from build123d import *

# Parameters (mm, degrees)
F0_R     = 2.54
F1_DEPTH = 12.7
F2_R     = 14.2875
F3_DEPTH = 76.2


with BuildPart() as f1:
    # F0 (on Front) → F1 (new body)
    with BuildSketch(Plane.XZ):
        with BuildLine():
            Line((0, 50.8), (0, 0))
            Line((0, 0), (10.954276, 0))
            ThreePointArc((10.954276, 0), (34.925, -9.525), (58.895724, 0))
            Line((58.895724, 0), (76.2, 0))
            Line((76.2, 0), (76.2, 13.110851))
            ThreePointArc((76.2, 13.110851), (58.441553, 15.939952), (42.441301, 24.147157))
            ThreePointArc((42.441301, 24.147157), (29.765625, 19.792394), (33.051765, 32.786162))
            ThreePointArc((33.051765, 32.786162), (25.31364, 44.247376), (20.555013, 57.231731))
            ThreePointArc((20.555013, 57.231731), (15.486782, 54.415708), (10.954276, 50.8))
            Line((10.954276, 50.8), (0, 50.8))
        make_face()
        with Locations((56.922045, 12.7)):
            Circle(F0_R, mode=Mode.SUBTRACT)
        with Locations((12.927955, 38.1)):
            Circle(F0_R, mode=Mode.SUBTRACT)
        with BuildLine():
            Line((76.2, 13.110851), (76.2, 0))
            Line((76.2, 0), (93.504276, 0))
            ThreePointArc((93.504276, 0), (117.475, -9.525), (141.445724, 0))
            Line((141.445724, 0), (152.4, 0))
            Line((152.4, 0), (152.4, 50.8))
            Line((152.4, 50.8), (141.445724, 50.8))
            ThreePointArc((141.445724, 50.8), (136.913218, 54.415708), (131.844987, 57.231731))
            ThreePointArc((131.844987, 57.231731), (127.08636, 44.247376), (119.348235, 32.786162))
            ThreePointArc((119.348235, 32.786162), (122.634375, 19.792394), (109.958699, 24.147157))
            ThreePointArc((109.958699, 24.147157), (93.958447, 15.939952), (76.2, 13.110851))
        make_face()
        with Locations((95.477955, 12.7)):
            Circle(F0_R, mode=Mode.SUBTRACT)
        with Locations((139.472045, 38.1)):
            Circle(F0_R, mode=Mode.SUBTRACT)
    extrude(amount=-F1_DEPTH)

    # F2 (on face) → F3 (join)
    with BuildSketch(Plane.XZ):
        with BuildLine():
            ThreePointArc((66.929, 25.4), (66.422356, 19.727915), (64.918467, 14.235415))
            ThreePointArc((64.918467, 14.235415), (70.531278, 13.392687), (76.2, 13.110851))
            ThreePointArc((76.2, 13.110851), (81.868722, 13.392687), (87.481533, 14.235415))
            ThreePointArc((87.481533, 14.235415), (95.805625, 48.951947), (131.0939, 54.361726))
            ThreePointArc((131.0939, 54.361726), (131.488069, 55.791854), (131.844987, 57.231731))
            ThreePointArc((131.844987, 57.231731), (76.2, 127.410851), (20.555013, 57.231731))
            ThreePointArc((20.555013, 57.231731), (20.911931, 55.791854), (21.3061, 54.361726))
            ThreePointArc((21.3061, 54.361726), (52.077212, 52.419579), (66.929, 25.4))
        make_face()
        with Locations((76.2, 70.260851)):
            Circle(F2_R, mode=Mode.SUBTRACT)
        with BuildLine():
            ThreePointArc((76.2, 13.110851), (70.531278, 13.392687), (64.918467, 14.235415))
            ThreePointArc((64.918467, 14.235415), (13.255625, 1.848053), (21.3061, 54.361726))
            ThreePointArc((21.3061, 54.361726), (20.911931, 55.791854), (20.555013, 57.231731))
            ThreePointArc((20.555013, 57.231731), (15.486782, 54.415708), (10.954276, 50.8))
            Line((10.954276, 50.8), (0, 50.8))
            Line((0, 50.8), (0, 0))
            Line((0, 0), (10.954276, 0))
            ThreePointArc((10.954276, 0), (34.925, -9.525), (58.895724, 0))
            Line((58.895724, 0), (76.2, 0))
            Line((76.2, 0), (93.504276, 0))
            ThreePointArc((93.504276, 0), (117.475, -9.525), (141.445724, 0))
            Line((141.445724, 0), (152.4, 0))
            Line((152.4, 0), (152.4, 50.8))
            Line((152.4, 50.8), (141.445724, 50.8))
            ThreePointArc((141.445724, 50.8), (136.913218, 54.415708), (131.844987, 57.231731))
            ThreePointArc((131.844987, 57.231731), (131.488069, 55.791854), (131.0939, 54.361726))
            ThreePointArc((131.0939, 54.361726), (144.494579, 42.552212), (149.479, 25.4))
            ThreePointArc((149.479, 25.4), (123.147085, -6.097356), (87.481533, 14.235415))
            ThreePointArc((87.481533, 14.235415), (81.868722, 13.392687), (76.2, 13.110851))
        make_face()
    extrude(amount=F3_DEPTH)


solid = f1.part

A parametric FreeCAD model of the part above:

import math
import FreeCAD as App
import Part
import Sketcher
from FreeCAD import Vector
Q = App.Units.Quantity

doc = App.newDocument("Part")
params = doc.addObject("Spreadsheet::Sheet", "Params")
for row, (alias, value) in enumerate([
    ("sketch1_diameter", "0.2 in"),
    ("sketch1_radius", "0.3 in"),
    ("sketch1_height", "2 in"),
    ("sketch1_radius2", "2.2500001 in"),
    ("sketch1_radius3", "1.375 in"),
    ("pad1_length", "0.5 in"),
    ("sketch2_height", "2 in"),
    ("sketch2_height2", "2 in"),
    ("sketch2_radius", "2.25 in"),
    ("sketch2_radius2", "1.26 in"),
    ("sketch2_radius3", "1.26 in"),
    ("pad2_length", "3 in"),
], start=1):
    params.set(f"A{row}", alias)
    params.set(f"B{row}", "=" + value)
    params.setAlias(f"B{row}", alias)

body = doc.addObject("PartDesign::Body", "Body")

sketch1 = body.newObject("Sketcher::SketchObject", "Sketch")
sketch1.AttachmentSupport = (doc.getObject("XZ_Plane"), [""])
sketch1.MapMode = "FlatFace"
sketch1.addGeometry(Part.LineSegment(Vector(0, 50.8, 0), Vector(0, 0, 0)), False)
sketch1.addGeometry(Part.LineSegment(Vector(0, 0, 0), Vector(10.954276, 0, 0)), False)
sketch1.addGeometry(Part.ArcOfCircle(Part.Circle(Vector(34.925, 25.399999, 0), Vector(0, 0, 1), 34.924999), math.radians(-133.341759), math.radians(-46.658241)), False)
sketch1.addGeometry(Part.LineSegment(Vector(58.895724, 0, 0), Vector(93.504276, 0, 0)), False)
sketch1.addGeometry(Part.ArcOfCircle(Part.Circle(Vector(117.475, 25.399999, 0), Vector(0, 0, 1), 34.924999), math.radians(-133.341759), math.radians(-46.658241)), False)
sketch1.addGeometry(Part.LineSegment(Vector(141.445724, 0, 0), Vector(152.4, 0, 0)), False)
sketch1.addGeometry(Part.LineSegment(Vector(152.4, 0, 0), Vector(152.4, 50.8, 0)), False)
sketch1.addGeometry(Part.LineSegment(Vector(152.4, 50.8, 0), Vector(141.445724, 50.8, 0)), False)
sketch1.addGeometry(Part.ArcOfCircle(Part.Circle(Vector(117.475007, 25.400011, 0), Vector(0, 0, 1), 34.924987), math.radians(46.658237), math.radians(65.703876)), False)
sketch1.addGeometry(Part.ArcOfCircle(Part.Circle(Vector(76.199998, 70.260853, 0), Vector(0, 0, 1), 57.150002), math.radians(-40.974653), math.radians(-13.178241)), False)
sketch1.addGeometry(Part.ArcOfCircle(Part.Circle(Vector(117.475, 25.4, 0), Vector(0, 0, 1), 7.62), math.radians(-170.536741), math.radians(75.76903)), False)
sketch1.addGeometry(Part.ArcOfCircle(Part.Circle(Vector(76.2, 70.260853, 0), Vector(0, 0, 1), 57.150002), math.radians(-90), math.radians(-53.793062)), False)
sketch1.addGeometry(Part.ArcOfCircle(Part.Circle(Vector(76.2, 70.260853, 0), Vector(0, 0, 1), 57.150002), math.radians(-126.206938), math.radians(-90)), False)
sketch1.addGeometry(Part.ArcOfCircle(Part.Circle(Vector(34.925, 25.4, 0), Vector(0, 0, 1), 7.62), math.radians(104.23097), math.radians(350.536741)), False)
sketch1.addGeometry(Part.ArcOfCircle(Part.Circle(Vector(76.200002, 70.260853, 0), Vector(0, 0, 1), 57.150002), math.radians(-166.821759), math.radians(-139.025347)), False)
sketch1.addGeometry(Part.ArcOfCircle(Part.Circle(Vector(34.924993, 25.400011, 0), Vector(0, 0, 1), 34.924987), math.radians(114.296124), math.radians(133.341763)), False)
sketch1.addGeometry(Part.LineSegment(Vector(10.954276, 50.8, 0), Vector(0, 50.8, 0)), False)
sketch1.addGeometry(Part.Circle(Vector(56.922045, 12.7, 0), Vector(0, 0, 1), 2.54), False)
sketch1.addGeometry(Part.Circle(Vector(95.477955, 12.7, 0), Vector(0, 0, 1), 2.54), False)
sketch1.addGeometry(Part.Circle(Vector(12.927955, 38.1, 0), Vector(0, 0, 1), 2.54), False)
sketch1.addGeometry(Part.Circle(Vector(139.472045, 38.1, 0), Vector(0, 0, 1), 2.54), False)
sketch1.addConstraint(Sketcher.Constraint("Coincident", 0, 2, 1, 1))
sketch1.addConstraint(Sketcher.Constraint("Coincident", 1, 2, 2, 1))
sketch1.addConstraint(Sketcher.Constraint("Coincident", 2, 2, 3, 1))
sketch1.addConstraint(Sketcher.Constraint("Coincident", 3, 2, 4, 1))
sketch1.addConstraint(Sketcher.Constraint("Coincident", 4, 2, 5, 1))
sketch1.addConstraint(Sketcher.Constraint("Coincident", 5, 2, 6, 1))
sketch1.addConstraint(Sketcher.Constraint("Coincident", 6, 2, 7, 1))
sketch1.addConstraint(Sketcher.Constraint("Coincident", 7, 2, 8, 1))
sketch1.addConstraint(Sketcher.Constraint("Coincident", 8, 2, 9, 2))
sketch1.addConstraint(Sketcher.Constraint("Coincident", 9, 1, 10, 2))
sketch1.addConstraint(Sketcher.Constraint("Coincident", 10, 1, 11, 2))
sketch1.addConstraint(Sketcher.Constraint("Tangent", 11, 1, 12, 2))
sketch1.addConstraint(Sketcher.Constraint("Coincident", 12, 1, 13, 2))
sketch1.addConstraint(Sketcher.Constraint("Coincident", 13, 1, 14, 2))
sketch1.addConstraint(Sketcher.Constraint("Coincident", 14, 1, 15, 1))
sketch1.addConstraint(Sketcher.Constraint("Coincident", 15, 2, 16, 1))
sketch1.addConstraint(Sketcher.Constraint("Coincident", 16, 2, 0, 1))
sketch1.addConstraint(Sketcher.Constraint("Vertical", 0))
sketch1.addConstraint(Sketcher.Constraint("Horizontal", 1))
sketch1.addConstraint(Sketcher.Constraint("Horizontal", 3))
sketch1.addConstraint(Sketcher.Constraint("Horizontal", 5))
sketch1.addConstraint(Sketcher.Constraint("Vertical", 6))
sketch1.addConstraint(Sketcher.Constraint("Horizontal", 7))
sketch1.addConstraint(Sketcher.Constraint("Horizontal", 16))
sketch1.addConstraint(Sketcher.Constraint("Coincident", 0, 2, -1, 1))
sketch1.addConstraint(Sketcher.Constraint("Coincident", 10, 3, 4, 3))
sketch1.addConstraint(Sketcher.Constraint("Coincident", 11, 3, 9, 3))
sketch1.addConstraint(Sketcher.Constraint("Coincident", 13, 3, 2, 3))
sketch1.addConstraint(Sketcher.Constraint("Coincident", 14, 3, 9, 3))
sketch1.addConstraint(Sketcher.Constraint("Equal", 2, 4))
sketch1.addConstraint(Sketcher.Constraint("Equal", 9, 11))
sketch1.addConstraint(Sketcher.Constraint("Equal", 11, 12))
sketch1.addConstraint(Sketcher.Constraint("Equal", 10, 13))
sketch1.addConstraint(Sketcher.Constraint("Equal", 12, 14))
sketch1.addConstraint(Sketcher.Constraint("Equal", 8, 15))
sketch1.addConstraint(Sketcher.Constraint("Equal", 17, 18))
sketch1.addConstraint(Sketcher.Constraint("Equal", 18, 19))
sketch1.addConstraint(Sketcher.Constraint("Equal", 19, 20))
sketch1.addConstraint(Sketcher.Constraint("PointOnObject", 2, 2, -1))
sketch1.addConstraint(Sketcher.Constraint("PointOnObject", 4, 2, -1))
sketch1.addConstraint(Sketcher.Constraint("Horizontal", 2, 3, 4, 3))
sketch1.addConstraint(Sketcher.Constraint("Horizontal", 8, 3, 15, 3))
sketch1.addConstraint(Sketcher.Constraint("Horizontal", 17, 3, 18, 3))
sketch1.addConstraint(Sketcher.Constraint("Horizontal", 19, 3, 20, 3))
sketch1.addConstraint(Sketcher.Constraint("Horizontal", 10, 1, 12, 1))
sketch1.addConstraint(Sketcher.Constraint("Horizontal", 8, 2, 14, 1))
sketch1.addConstraint(Sketcher.Constraint("Horizontal", 7, 2, 15, 2))
sketch1.addConstraint(Sketcher.Constraint("Vertical", 4, 2, 7, 2))
sketch1.addConstraint(Sketcher.Constraint("Vertical", 14, 3, 11, 1))
sketch1.addConstraint(Sketcher.Constraint("Equal", 1, 5))
sketch1.addConstraint(Sketcher.Constraint("Diameter", 17, Q("0.2 in")))
sketch1.addConstraint(Sketcher.Constraint("Radius", 10, Q("0.3 in")))
sketch1.addConstraint(Sketcher.Constraint("DistanceY", 0, 2, 0, 1, Q("2 in")))
sketch1.addConstraint(Sketcher.Constraint("Radius", 9, Q("2.2500001 in")))
sketch1.addConstraint(Sketcher.Constraint("DistanceY", -1, 1, 2, 3, Q("1 in")))
sketch1.addConstraint(Sketcher.Constraint("DistanceX", -1, 1, 9, 3, Q("2.9999999 in")))
sketch1.addConstraint(Sketcher.Constraint("Radius", 2, Q("1.375 in")))
sketch1.addConstraint(Sketcher.Constraint("DistanceY", 17, 3, 19, 3, Q("1 in")))
sketch1.addConstraint(Sketcher.Constraint("DistanceY", -1, 1, 17, 3, Q("0.5 in")))
sketch1.addConstraint(Sketcher.Constraint("DistanceX", 2, 3, 4, 3, Q("3.25 in")))
sketch1.addConstraint(Sketcher.Constraint("Radius", 8, 34.924987))
sketch1.addConstraint(Sketcher.Constraint("DistanceX", -1, 1, 10, 1, 109.958699))
sketch1.addConstraint(Sketcher.Constraint("DistanceY", -1, 1, 8, 3, 25.400011))
sketch1.addConstraint(Sketcher.Constraint("DistanceX", 15, 3, 17, 3, 21.997052))
sketch1.addConstraint(Sketcher.Constraint("DistanceX", 18, 3, 8, 3, 21.997052))
sketch1.addConstraint(Sketcher.Constraint("DistanceX", 19, 3, 15, 3, 21.997038))
sketch1.addConstraint(Sketcher.Constraint("DistanceX", 8, 3, 20, 3, 21.997038))
sketch1.setExpression("Constraints[50]", "Params.sketch1_diameter")
sketch1.setExpression("Constraints[51]", "Params.sketch1_radius")
sketch1.setExpression("Constraints[52]", "Params.sketch1_height")
sketch1.setExpression("Constraints[53]", "Params.sketch1_radius2")
sketch1.setExpression("Constraints[56]", "Params.sketch1_radius3")
pad1 = body.newObject("PartDesign::Pad", "Pad")
pad1.Profile = sketch1
pad1.setExpression("Length", "Params.pad1_length")
pad1.Reversed = True

sketch2 = body.newObject("Sketcher::SketchObject", "Sketch001")
sketch2.AttachmentSupport = (doc.getObject("XZ_Plane"), [""])
sketch2.MapMode = "FlatFace"
sketch2.addGeometry(Part.ArcOfCircle(Part.Circle(Vector(76.2, 70.260851, 0), Vector(0, 0, 1), 57.15), math.radians(-13.178239), math.radians(193.178239)), False)
sketch2.addGeometry(Part.ArcOfCircle(Part.Circle(Vector(34.924993, 25.400011, 0), Vector(0, 0, 1), 34.924987), math.radians(114.296124), math.radians(133.341763)), False)
sketch2.addGeometry(Part.LineSegment(Vector(10.954276, 50.8, 0), Vector(0, 50.8, 0)), False)
sketch2.addGeometry(Part.LineSegment(Vector(0, 50.8, 0), Vector(0, 0, 0)), False)
sketch2.addGeometry(Part.LineSegment(Vector(0, 0, 0), Vector(10.954276, 0, 0)), False)
sketch2.addGeometry(Part.ArcOfCircle(Part.Circle(Vector(34.925, 25.399999, 0), Vector(0, 0, 1), 34.924999), math.radians(-133.341759), math.radians(-46.658241)), False)
sketch2.addGeometry(Part.LineSegment(Vector(58.895724, 0, 0), Vector(93.504276, 0, 0)), False)
sketch2.addGeometry(Part.ArcOfCircle(Part.Circle(Vector(117.475, 25.399999, 0), Vector(0, 0, 1), 34.924999), math.radians(-133.341759), math.radians(-46.658241)), False)
sketch2.addGeometry(Part.LineSegment(Vector(141.445724, 0, 0), Vector(152.4, 0, 0)), False)
sketch2.addGeometry(Part.LineSegment(Vector(152.4, 0, 0), Vector(152.4, 50.8, 0)), False)
sketch2.addGeometry(Part.LineSegment(Vector(152.4, 50.8, 0), Vector(141.445724, 50.8, 0)), False)
sketch2.addGeometry(Part.ArcOfCircle(Part.Circle(Vector(117.475007, 25.400011, 0), Vector(0, 0, 1), 34.924987), math.radians(46.658237), math.radians(65.703876)), False)
sketch2.addGeometry(Part.ArcOfCircle(Part.Circle(Vector(34.924966, 25.400006, 0), Vector(0, 0, 1), 32.004034), math.radians(-20.416961), math.radians(-0.000011)), False)
sketch2.addGeometry(Part.ArcOfCircle(Part.Circle(Vector(34.925, 25.4, 0), Vector(0, 0, 1), 32.004), math.radians(115.184686), math.radians(339.583028)), False)
sketch2.addGeometry(Part.ArcOfCircle(Part.Circle(Vector(34.925, 25.4, 0), Vector(0, 0, 1), 32.004), math.radians(-0.000001), math.radians(115.184687)), False)
sketch2.addGeometry(Part.ArcOfCircle(Part.Circle(Vector(117.475, 25.4, 0), Vector(0, 0, 1), 32.004), math.radians(64.815314), math.radians(200.416972)), False)
sketch2.addGeometry(Part.ArcOfCircle(Part.Circle(Vector(117.475001, 25.400001, 0), Vector(0, 0, 1), 32.003999), math.radians(-0.000001), math.radians(64.815315)), False)
sketch2.addGeometry(Part.ArcOfCircle(Part.Circle(Vector(117.475, 25.400001, 0), Vector(0, 0, 1), 32.004), math.radians(-159.583027), math.radians(-0.000001)), False)
sketch2.addGeometry(Part.Circle(Vector(76.2, 70.260851, 0), Vector(0, 0, 1), 14.2875), False)
sketch2.addConstraint(Sketcher.Constraint("Coincident", 0, 2, 1, 1))
sketch2.addConstraint(Sketcher.Constraint("Coincident", 1, 2, 2, 1))
sketch2.addConstraint(Sketcher.Constraint("Coincident", 2, 2, 3, 1))
sketch2.addConstraint(Sketcher.Constraint("Coincident", 3, 2, 4, 1))
sketch2.addConstraint(Sketcher.Constraint("Coincident", 4, 2, 5, 1))
sketch2.addConstraint(Sketcher.Constraint("Coincident", 5, 2, 6, 1))
sketch2.addConstraint(Sketcher.Constraint("Coincident", 6, 2, 7, 1))
sketch2.addConstraint(Sketcher.Constraint("Coincident", 7, 2, 8, 1))
sketch2.addConstraint(Sketcher.Constraint("Coincident", 8, 2, 9, 1))
sketch2.addConstraint(Sketcher.Constraint("Coincident", 9, 2, 10, 1))
sketch2.addConstraint(Sketcher.Constraint("Coincident", 10, 2, 11, 1))
sketch2.addConstraint(Sketcher.Constraint("Coincident", 11, 2, 0, 1))
sketch2.addConstraint(Sketcher.Constraint("Coincident", 12, 1, 13, 2))
sketch2.addConstraint(Sketcher.Constraint("Coincident", 13, 1, 14, 2))
sketch2.addConstraint(Sketcher.Constraint("Coincident", 14, 1, 12, 2))
sketch2.addConstraint(Sketcher.Constraint("Coincident", 15, 1, 16, 2))
sketch2.addConstraint(Sketcher.Constraint("Coincident", 16, 1, 17, 2))
sketch2.addConstraint(Sketcher.Constraint("Coincident", 17, 1, 15, 2))
sketch2.addConstraint(Sketcher.Constraint("Horizontal", 2))
sketch2.addConstraint(Sketcher.Constraint("Vertical", 3))
sketch2.addConstraint(Sketcher.Constraint("Horizontal", 4))
sketch2.addConstraint(Sketcher.Constraint("Horizontal", 6))
sketch2.addConstraint(Sketcher.Constraint("Horizontal", 8))
sketch2.addConstraint(Sketcher.Constraint("Vertical", 9))
sketch2.addConstraint(Sketcher.Constraint("Horizontal", 10))
sketch2.addConstraint(Sketcher.Constraint("Coincident", 3, 2, -1, 1))
sketch2.addConstraint(Sketcher.Constraint("Coincident", 13, 3, 5, 3))
sketch2.addConstraint(Sketcher.Constraint("Coincident", 14, 3, 5, 3))
sketch2.addConstraint(Sketcher.Constraint("Coincident", 15, 3, 7, 3))
sketch2.addConstraint(Sketcher.Constraint("Coincident", 16, 3, 7, 3))
sketch2.addConstraint(Sketcher.Constraint("Coincident", 18, 3, 0, 3))
sketch2.addConstraint(Sketcher.Constraint("PointOnObject", 5, 2, -1))
sketch2.addConstraint(Sketcher.Constraint("PointOnObject", 7, 2, -1))
sketch2.addConstraint(Sketcher.Constraint("DistanceY", 3, 2, 3, 1, Q("2 in")))
sketch2.addConstraint(Sketcher.Constraint("DistanceY", 9, 1, 9, 2, Q("2 in")))
sketch2.addConstraint(Sketcher.Constraint("Radius", 0, Q("2.25 in")))
sketch2.addConstraint(Sketcher.Constraint("Radius", 13, Q("1.26 in")))
sketch2.addConstraint(Sketcher.Constraint("Radius", 15, Q("1.26 in")))
sketch2.addConstraint(Sketcher.Constraint("Radius", 17, Q("1.26 in")))
sketch2.addConstraint(Sketcher.Constraint("Diameter", 18, Q("1.125 in")))
sketch2.addConstraint(Sketcher.Constraint("DistanceX", -1, 1, 0, 3, Q("3 in")))
sketch2.addConstraint(Sketcher.Constraint("DistanceY", -1, 1, 5, 3, Q("1 in")))
sketch2.addConstraint(Sketcher.Constraint("DistanceY", -1, 1, 7, 3, Q("1 in")))
sketch2.addConstraint(Sketcher.Constraint("DistanceX", -1, 1, 8, 2, Q("6 in")))
sketch2.addConstraint(Sketcher.Constraint("DistanceY", -1, 1, 14, 1, Q("1 in")))
sketch2.addConstraint(Sketcher.Constraint("DistanceY", -1, 1, 16, 1, Q("1 in")))
sketch2.addConstraint(Sketcher.Constraint("Radius", 5, Q("1.375 in")))
sketch2.addConstraint(Sketcher.Constraint("Radius", 7, Q("1.375 in")))
sketch2.addConstraint(Sketcher.Constraint("DistanceX", 5, 3, 7, 3, Q("3.25 in")))
sketch2.addConstraint(Sketcher.Constraint("DistanceX", -1, 1, 5, 3, Q("1.375 in")))
sketch2.addConstraint(Sketcher.Constraint("Radius", 1, 34.924987))
sketch2.addConstraint(Sketcher.Constraint("Radius", 11, 34.924987))
sketch2.addConstraint(Sketcher.Constraint("Radius", 12, 32.004034))
sketch2.addConstraint(Sketcher.Constraint("DistanceX", -1, 1, 13, 1, 21.3061))
sketch2.addConstraint(Sketcher.Constraint("DistanceX", -1, 1, 15, 1, 131.0939))
sketch2.addConstraint(Sketcher.Constraint("DistanceX", 2, 2, 2, 1, 10.954276))
sketch2.addConstraint(Sketcher.Constraint("DistanceX", 10, 2, 10, 1, 10.954276))
sketch2.addConstraint(Sketcher.Constraint("DistanceY", -1, 1, 0, 3, 70.260851))
sketch2.addConstraint(Sketcher.Constraint("DistanceY", -1, 1, 1, 3, 25.400011))
sketch2.addConstraint(Sketcher.Constraint("DistanceY", -1, 1, 11, 3, 25.400011))
sketch2.addConstraint(Sketcher.Constraint("DistanceX", 12, 1, 6, 2, 28.585809))
sketch2.addConstraint(Sketcher.Constraint("DistanceX", 5, 2, 17, 1, 28.585809))
sketch2.setExpression("Constraints[33]", "Params.sketch2_height")
sketch2.setExpression("Constraints[34]", "Params.sketch2_height2")
sketch2.setExpression("Constraints[35]", "Params.sketch2_radius")
sketch2.setExpression("Constraints[36]", "Params.sketch2_radius2")
sketch2.setExpression("Constraints[37]", "Params.sketch2_radius3")
pad2 = body.newObject("PartDesign::Pad", "Pad001")
pad2.Profile = sketch2
pad2.setExpression("Length", "Params.pad2_length")

doc.recompute()
